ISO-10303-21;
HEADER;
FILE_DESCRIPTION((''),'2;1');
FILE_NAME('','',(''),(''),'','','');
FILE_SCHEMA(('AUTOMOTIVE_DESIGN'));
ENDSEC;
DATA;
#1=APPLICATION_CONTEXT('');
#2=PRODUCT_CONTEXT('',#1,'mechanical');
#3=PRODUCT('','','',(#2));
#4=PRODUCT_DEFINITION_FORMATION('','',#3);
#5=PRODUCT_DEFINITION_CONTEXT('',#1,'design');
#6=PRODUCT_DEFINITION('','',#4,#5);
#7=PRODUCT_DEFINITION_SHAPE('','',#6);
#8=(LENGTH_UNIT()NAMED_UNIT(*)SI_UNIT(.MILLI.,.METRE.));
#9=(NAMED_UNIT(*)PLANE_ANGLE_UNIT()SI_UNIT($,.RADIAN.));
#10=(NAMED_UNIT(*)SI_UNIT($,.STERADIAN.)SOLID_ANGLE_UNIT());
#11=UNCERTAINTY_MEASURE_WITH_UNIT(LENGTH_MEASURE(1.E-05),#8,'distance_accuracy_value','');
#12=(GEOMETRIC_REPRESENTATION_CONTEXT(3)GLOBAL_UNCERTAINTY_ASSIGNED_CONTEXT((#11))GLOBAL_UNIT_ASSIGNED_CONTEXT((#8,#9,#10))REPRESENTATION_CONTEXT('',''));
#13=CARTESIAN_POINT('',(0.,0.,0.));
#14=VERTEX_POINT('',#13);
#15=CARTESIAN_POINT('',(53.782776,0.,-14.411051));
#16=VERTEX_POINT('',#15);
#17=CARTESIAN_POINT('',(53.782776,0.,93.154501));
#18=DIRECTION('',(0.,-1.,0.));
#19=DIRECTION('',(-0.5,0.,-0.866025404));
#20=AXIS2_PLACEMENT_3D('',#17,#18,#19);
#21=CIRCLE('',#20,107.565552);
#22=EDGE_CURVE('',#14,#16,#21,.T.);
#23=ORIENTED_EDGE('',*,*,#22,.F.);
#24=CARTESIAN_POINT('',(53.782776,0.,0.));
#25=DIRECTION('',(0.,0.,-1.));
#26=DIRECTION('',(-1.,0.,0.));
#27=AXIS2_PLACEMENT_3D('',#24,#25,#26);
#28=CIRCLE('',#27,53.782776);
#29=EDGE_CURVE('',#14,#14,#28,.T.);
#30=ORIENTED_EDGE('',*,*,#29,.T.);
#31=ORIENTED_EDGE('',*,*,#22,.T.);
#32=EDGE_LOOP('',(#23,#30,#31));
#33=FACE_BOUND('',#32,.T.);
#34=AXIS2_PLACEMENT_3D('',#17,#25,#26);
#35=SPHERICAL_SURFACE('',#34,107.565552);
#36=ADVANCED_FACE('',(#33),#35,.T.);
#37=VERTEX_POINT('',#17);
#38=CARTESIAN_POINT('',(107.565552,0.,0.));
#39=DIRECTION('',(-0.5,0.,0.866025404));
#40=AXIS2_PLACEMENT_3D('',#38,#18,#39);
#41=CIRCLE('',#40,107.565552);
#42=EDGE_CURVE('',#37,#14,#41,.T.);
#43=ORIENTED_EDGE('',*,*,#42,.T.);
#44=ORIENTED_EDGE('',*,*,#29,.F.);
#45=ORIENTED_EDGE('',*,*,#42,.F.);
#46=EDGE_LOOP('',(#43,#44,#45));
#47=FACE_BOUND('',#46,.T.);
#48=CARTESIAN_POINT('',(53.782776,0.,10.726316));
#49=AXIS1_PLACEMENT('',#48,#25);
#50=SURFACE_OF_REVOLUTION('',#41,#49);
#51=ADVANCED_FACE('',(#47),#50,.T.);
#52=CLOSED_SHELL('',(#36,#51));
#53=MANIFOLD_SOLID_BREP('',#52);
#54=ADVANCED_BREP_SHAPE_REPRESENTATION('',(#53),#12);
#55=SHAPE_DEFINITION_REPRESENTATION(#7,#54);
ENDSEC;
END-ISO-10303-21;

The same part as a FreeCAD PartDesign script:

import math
import FreeCAD as App
import Part
import Sketcher

V = App.Vector

doc = App.newDocument("Part")
body = doc.addObject("PartDesign::Body", "Body")

# Sketch on XZ plane
sketch1 = body.newObject("Sketcher::SketchObject", "Sketch")
sketch1.AttachmentSupport = (doc.getObject("XZ_Plane"), [""])
sketch1.MapMode = "FlatFace"
sketch1.addGeometry([
    Part.ArcOfCircle(Part.Circle(V(108, 0, 0), V(0, 0, 1), 108), math.radians(120), math.radians(180)),
    Part.ArcOfCircle(Part.Circle(V(54, 93, 0), V(0, 0, 1), 108), math.radians(-120), math.radians(-90)),
    Part.LineSegment(V(54, -14, 0), V(54, 93, 0)),
], False)
sketch1.addGeometry(Part.LineSegment(V(54, 93, 0), V(54, -14, 0)), True)  # axis
sketch1.addConstraint([
    Sketcher.Constraint("Coincident", 0, 2, 1, 1),
    Sketcher.Constraint("Coincident", 1, 2, 2, 1),
    Sketcher.Constraint("Coincident", 2, 2, 0, 1),
    Sketcher.Constraint("Vertical", 2),
    Sketcher.Constraint("Vertical", 3),
    Sketcher.Constraint("Coincident", 0, 2, -1, 1),
    Sketcher.Constraint("Coincident", 2, 2, 1, 3),
    Sketcher.Constraint("Coincident", 3, 1, 1, 3),
    Sketcher.Constraint("Equal", 0, 1),
    Sketcher.Constraint("PointOnObject", 0, 3, -1),
    Sketcher.Constraint("Equal", 2, 3),
    Sketcher.Constraint("Radius", 0, 107.565552),
])
revolution = body.newObject("PartDesign::Revolution", "Revolution")
revolution.Profile = sketch1
revolution.ReferenceAxis = (sketch1, ["Axis0"])
revolution.Angle = 360

doc.recompute()
